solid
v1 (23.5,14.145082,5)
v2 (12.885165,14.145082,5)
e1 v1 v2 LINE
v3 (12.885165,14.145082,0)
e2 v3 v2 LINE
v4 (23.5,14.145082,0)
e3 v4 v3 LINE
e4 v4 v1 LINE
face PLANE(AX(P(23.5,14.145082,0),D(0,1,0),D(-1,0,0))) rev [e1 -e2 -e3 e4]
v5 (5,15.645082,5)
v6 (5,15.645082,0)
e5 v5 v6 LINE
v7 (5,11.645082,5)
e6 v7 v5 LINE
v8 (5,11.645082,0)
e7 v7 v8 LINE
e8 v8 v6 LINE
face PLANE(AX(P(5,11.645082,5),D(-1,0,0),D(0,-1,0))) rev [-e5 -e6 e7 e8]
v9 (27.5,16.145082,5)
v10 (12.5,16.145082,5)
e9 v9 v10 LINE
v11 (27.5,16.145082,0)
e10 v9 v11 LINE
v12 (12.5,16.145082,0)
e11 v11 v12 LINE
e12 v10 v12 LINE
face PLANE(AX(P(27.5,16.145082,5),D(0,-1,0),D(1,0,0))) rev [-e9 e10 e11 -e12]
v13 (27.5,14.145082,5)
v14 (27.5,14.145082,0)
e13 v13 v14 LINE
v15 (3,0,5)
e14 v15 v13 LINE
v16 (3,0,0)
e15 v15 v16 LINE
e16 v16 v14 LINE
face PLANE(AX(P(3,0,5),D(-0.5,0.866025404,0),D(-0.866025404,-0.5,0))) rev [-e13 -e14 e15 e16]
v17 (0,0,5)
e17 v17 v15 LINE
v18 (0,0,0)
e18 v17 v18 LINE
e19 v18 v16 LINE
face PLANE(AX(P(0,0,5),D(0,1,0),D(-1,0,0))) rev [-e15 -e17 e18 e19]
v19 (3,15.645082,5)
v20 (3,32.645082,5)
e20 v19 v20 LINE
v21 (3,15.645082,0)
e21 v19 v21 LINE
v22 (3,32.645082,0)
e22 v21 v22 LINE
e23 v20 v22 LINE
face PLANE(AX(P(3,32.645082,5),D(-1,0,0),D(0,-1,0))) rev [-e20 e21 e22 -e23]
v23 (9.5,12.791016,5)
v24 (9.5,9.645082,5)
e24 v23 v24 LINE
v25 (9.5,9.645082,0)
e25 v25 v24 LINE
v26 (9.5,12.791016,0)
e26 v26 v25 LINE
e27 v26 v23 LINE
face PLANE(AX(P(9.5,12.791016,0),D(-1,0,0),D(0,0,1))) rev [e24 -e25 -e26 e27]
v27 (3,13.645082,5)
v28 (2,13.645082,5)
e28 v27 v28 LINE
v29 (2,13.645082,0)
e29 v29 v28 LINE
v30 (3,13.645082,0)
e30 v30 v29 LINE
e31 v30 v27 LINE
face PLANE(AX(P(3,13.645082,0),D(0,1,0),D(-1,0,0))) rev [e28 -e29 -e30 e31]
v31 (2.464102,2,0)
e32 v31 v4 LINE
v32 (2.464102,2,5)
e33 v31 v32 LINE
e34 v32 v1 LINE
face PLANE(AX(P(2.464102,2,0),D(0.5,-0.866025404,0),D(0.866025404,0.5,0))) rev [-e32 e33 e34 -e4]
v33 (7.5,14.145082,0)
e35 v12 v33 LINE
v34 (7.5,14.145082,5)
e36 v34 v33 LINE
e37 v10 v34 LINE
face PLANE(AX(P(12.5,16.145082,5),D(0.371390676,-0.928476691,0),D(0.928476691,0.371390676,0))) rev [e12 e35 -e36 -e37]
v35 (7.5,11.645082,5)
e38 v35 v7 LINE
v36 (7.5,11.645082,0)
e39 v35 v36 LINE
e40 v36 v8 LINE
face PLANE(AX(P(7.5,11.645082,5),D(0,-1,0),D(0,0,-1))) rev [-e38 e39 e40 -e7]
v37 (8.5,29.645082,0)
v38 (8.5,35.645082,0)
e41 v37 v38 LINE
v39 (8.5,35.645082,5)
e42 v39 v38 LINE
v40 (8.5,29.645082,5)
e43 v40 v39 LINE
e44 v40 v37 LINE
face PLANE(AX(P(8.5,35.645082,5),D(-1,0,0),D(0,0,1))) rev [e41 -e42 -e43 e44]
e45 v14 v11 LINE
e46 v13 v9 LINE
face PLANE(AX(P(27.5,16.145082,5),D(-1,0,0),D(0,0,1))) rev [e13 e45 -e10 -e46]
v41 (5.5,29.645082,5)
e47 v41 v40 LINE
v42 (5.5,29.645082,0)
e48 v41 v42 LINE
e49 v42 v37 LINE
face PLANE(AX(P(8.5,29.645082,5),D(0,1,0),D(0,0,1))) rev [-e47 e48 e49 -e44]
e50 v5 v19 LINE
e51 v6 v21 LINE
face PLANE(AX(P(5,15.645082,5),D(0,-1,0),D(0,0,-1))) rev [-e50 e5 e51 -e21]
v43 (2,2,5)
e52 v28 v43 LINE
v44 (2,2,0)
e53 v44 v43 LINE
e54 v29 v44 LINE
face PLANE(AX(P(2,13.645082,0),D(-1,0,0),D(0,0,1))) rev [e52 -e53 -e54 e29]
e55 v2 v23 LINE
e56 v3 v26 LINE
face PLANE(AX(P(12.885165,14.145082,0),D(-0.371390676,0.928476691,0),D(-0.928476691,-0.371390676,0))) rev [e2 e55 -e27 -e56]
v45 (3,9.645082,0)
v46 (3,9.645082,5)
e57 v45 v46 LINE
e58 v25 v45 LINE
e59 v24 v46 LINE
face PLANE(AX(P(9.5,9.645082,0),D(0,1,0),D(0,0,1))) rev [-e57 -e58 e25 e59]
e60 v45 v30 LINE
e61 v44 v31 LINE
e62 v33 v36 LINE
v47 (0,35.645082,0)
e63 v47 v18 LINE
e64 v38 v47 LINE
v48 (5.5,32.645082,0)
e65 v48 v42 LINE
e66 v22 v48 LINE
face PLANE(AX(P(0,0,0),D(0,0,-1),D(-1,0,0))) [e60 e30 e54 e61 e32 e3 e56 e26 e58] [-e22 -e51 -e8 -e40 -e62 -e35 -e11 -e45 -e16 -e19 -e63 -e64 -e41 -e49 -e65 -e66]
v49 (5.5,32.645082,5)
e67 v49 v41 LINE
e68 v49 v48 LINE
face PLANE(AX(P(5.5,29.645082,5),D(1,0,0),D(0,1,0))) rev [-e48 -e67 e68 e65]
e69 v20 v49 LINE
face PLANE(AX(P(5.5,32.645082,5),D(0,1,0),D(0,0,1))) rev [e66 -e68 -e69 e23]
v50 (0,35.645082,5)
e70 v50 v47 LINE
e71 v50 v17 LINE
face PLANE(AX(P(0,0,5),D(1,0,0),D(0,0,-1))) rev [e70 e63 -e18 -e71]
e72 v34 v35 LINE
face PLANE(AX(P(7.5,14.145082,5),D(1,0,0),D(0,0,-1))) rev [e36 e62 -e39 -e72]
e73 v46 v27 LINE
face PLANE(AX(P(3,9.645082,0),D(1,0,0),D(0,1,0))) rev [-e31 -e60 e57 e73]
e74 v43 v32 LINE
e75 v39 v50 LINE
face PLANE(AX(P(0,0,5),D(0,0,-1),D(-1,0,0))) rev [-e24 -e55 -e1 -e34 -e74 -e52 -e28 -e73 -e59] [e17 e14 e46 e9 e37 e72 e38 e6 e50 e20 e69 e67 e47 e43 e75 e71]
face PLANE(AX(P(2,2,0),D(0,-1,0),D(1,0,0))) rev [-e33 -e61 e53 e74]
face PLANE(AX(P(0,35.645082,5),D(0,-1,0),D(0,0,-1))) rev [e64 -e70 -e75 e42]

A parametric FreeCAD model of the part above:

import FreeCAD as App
import Part
import Sketcher

V = App.Vector
Q = App.Units.Quantity

doc = App.newDocument("Part")
body = doc.addObject("PartDesign::Body", "Body")

# Sketch on XY plane
sketch1 = body.newObject("Sketcher::SketchObject", "Sketch")
sketch1.AttachmentSupport = (doc.getObject("XY_Plane"), [""])
sketch1.MapMode = "FlatFace"
sketch1.addGeometry([
    Part.LineSegment(V(0, 35.6, 0), V(0, 0, 0)),  # 0
    Part.LineSegment(V(0, 0, 0), V(3, 0, 0)),  # 1
    Part.LineSegment(V(3, 0, 0), V(27.5, 14.1, 0)),  # 2
    Part.LineSegment(V(27.5, 14.1, 0), V(27.5, 16.1, 0)),  # 3
    Part.LineSegment(V(27.5, 16.1, 0), V(12.5, 16.1, 0)),  # 4
    Part.LineSegment(V(12.5, 16.1, 0), V(7.5, 14.1, 0)),  # 5
    Part.LineSegment(V(7.5, 14.1, 0), V(7.5, 11.6, 0)),  # 6
    Part.LineSegment(V(7.5, 11.6, 0), V(5, 11.6, 0)),  # 7
    Part.LineSegment(V(5, 11.6, 0), V(5, 15.6, 0)),  # 8
    Part.LineSegment(V(5, 15.6, 0), V(3, 15.6, 0)),  # 9
    Part.LineSegment(V(3, 15.6, 0), V(3, 32.6, 0)),  # 10
    Part.LineSegment(V(3, 32.6, 0), V(5.5, 32.6, 0)),  # 11
    Part.LineSegment(V(5.5, 32.6, 0), V(5.5, 29.6, 0)),  # 12
    Part.LineSegment(V(5.5, 29.6, 0), V(8.5, 29.6, 0)),  # 13
    Part.LineSegment(V(8.5, 29.6, 0), V(8.5, 35.6, 0)),  # 14
    Part.LineSegment(V(8.5, 35.6, 0), V(0, 35.6, 0)),  # 15
], False)
sketch1.addConstraint([
    Sketcher.Constraint("Coincident", 0, 2, 1, 1),
    Sketcher.Constraint("Coincident", 1, 2, 2, 1),
    Sketcher.Constraint("Coincident", 2, 2, 3, 1),
    Sketcher.Constraint("Coincident", 3, 2, 4, 1),
    Sketcher.Constraint("Coincident", 4, 2, 5, 1),
    Sketcher.Constraint("Coincident", 5, 2, 6, 1),
    Sketcher.Constraint("Coincident", 6, 2, 7, 1),
    Sketcher.Constraint("Coincident", 7, 2, 8, 1),
    Sketcher.Constraint("Coincident", 8, 2, 9, 1),
    Sketcher.Constraint("Coincident", 9, 2, 10, 1),
    Sketcher.Constraint("Coincident", 10, 2, 11, 1),
    Sketcher.Constraint("Coincident", 11, 2, 12, 1),
    Sketcher.Constraint("Coincident", 12, 2, 13, 1),
    Sketcher.Constraint("Coincident", 13, 2, 14, 1),
    Sketcher.Constraint("Coincident", 14, 2, 15, 1),
    Sketcher.Constraint("Coincident", 15, 2, 0, 1),
    Sketcher.Constraint("Vertical", 0),
    Sketcher.Constraint("Horizontal", 1),
    Sketcher.Constraint("Vertical", 3),
    Sketcher.Constraint("Horizontal", 4),
    Sketcher.Constraint("Vertical", 6),
    Sketcher.Constraint("Horizontal", 7),
    Sketcher.Constraint("Vertical", 8),
    Sketcher.Constraint("Horizontal", 9),
    Sketcher.Constraint("Vertical", 10),
    Sketcher.Constraint("Horizontal", 11),
    Sketcher.Constraint("Vertical", 12),
    Sketcher.Constraint("Horizontal", 13),
    Sketcher.Constraint("Vertical", 14),
    Sketcher.Constraint("Horizontal", 15),
    Sketcher.Constraint("Coincident", 0, 2, -1, 1),
    Sketcher.Constraint("Horizontal", 2, 2, 5, 2),
    Sketcher.Constraint("Vertical", 1, 2, 9, 2),
    Sketcher.Constraint("Equal", 7, 11),
    Sketcher.Constraint("Equal", 1, 13),
    Sketcher.Constraint("Equal", 9, 3),
    Sketcher.Constraint("Equal", 11, 6),
    Sketcher.Constraint("Equal", 13, 12),
    Sketcher.Constraint("DistanceX", 1, 1, 1, 2, 3.0),
    Sketcher.Constraint("DistanceX", 4, 2, 4, 1, 15.0),
    Sketcher.Constraint("DistanceX", 9, 2, 9, 1, 2.0),
    Sketcher.Constraint("DistanceY", 8, 1, 8, 2, 4.0),
    Sketcher.Constraint("DistanceY", 10, 1, 10, 2, 17.0),
    Sketcher.Constraint("DistanceY", 14, 1, 14, 2, 6.0),
    Sketcher.Constraint("Angle", 2, Q("30 deg")),
    Sketcher.Constraint("DistanceX", 7, 2, 7, 1, 2.5),
    Sketcher.Constraint("DistanceX", 5, 2, 4, 2, 5.0),
])
pad1 = body.newObject("PartDesign::Pad", "Pad")
pad1.Profile = sketch1
pad1.Length = 5

# Sketch on XY plane
sketch2 = body.newObject("Sketcher::SketchObject", "Sketch001")
sketch2.AttachmentSupport = (doc.getObject("XY_Plane"), [""])
sketch2.MapMode = "FlatFace"
sketch2.AttachmentOffset = App.Placement(V(0, 0, 5), App.Rotation())
sketch2.addGeometry([
    Part.LineSegment(V(9.5, 12.79, 0), V(9.5, 9.65, 0)),  # 0
    Part.LineSegment(V(9.5, 9.65, 0), V(3, 9.65, 0)),  # 1
    Part.LineSegment(V(3, 9.65, 0), V(3, 13.65, 0)),  # 2
    Part.LineSegment(V(3, 13.65, 0), V(2, 13.65, 0)),  # 3
    Part.LineSegment(V(2, 13.65, 0), V(2, 2, 0)),  # 4
    Part.LineSegment(V(2, 2, 0), V(2.46, 2, 0)),  # 5
    Part.LineSegment(V(2.46, 2, 0), V(23.5, 14.15, 0)),  # 6
    Part.LineSegment(V(23.5, 14.15, 0), V(12.89, 14.15, 0)),  # 7
    Part.LineSegment(V(12.89, 14.15, 0), V(9.5, 12.79, 0)),  # 8
], False)
sketch2.addConstraint([
    Sketcher.Constraint("Coincident", 0, 2, 1, 1),
    Sketcher.Constraint("Coincident", 1, 2, 2, 1),
    Sketcher.Constraint("Coincident", 2, 2, 3, 1),
    Sketcher.Constraint("Coincident", 3, 2, 4, 1),
    Sketcher.Constraint("Coincident", 4, 2, 5, 1),
    Sketcher.Constraint("Coincident", 5, 2, 6, 1),
    Sketcher.Constraint("Coincident", 6, 2, 7, 1),
    Sketcher.Constraint("Coincident", 7, 2, 8, 1),
    Sketcher.Constraint("Coincident", 8, 2, 0, 1),
    Sketcher.Constraint("Vertical", 0),
    Sketcher.Constraint("Horizontal", 1),
    Sketcher.Constraint("Vertical", 2),
    Sketcher.Constraint("Horizontal", 3),
    Sketcher.Constraint("Vertical", 4),
    Sketcher.Constraint("Horizontal", 5),
    Sketcher.Constraint("Horizontal", 7),
    Sketcher.Constraint("DistanceX", 3, 2, 3, 1, 1.0),
    Sketcher.Constraint("DistanceY", 2, 1, 2, 2, 4.0),
    Sketcher.Constraint("Angle", 6, Q("30 deg")),
    Sketcher.Constraint("DistanceX", 1, 2, 1, 1, 6.5),
    Sketcher.Constraint("DistanceX", -1, 1, 1, 2, 3.0),
    Sketcher.Constraint("DistanceY", -1, 1, 4, 2, 2.0),
    Sketcher.Constraint("DistanceX", 0, 2, 6, 2, 14.0),
    Sketcher.Constraint("DistanceY", 0, 2, 6, 2, 4.5),
    Sketcher.Constraint("DistanceX", 5, 1, 5, 2, 0.464102),
    Sketcher.Constraint("DistanceX", 7, 2, 7, 1, 10.614835),
    Sketcher.Constraint("DistanceY", 0, 2, 0, 1, 3.145934),
])
pocket1 = body.newObject("PartDesign::Pocket", "Pocket")
pocket1.Profile = sketch2
pocket1.Type = "ThroughAll"

doc.recompute()
